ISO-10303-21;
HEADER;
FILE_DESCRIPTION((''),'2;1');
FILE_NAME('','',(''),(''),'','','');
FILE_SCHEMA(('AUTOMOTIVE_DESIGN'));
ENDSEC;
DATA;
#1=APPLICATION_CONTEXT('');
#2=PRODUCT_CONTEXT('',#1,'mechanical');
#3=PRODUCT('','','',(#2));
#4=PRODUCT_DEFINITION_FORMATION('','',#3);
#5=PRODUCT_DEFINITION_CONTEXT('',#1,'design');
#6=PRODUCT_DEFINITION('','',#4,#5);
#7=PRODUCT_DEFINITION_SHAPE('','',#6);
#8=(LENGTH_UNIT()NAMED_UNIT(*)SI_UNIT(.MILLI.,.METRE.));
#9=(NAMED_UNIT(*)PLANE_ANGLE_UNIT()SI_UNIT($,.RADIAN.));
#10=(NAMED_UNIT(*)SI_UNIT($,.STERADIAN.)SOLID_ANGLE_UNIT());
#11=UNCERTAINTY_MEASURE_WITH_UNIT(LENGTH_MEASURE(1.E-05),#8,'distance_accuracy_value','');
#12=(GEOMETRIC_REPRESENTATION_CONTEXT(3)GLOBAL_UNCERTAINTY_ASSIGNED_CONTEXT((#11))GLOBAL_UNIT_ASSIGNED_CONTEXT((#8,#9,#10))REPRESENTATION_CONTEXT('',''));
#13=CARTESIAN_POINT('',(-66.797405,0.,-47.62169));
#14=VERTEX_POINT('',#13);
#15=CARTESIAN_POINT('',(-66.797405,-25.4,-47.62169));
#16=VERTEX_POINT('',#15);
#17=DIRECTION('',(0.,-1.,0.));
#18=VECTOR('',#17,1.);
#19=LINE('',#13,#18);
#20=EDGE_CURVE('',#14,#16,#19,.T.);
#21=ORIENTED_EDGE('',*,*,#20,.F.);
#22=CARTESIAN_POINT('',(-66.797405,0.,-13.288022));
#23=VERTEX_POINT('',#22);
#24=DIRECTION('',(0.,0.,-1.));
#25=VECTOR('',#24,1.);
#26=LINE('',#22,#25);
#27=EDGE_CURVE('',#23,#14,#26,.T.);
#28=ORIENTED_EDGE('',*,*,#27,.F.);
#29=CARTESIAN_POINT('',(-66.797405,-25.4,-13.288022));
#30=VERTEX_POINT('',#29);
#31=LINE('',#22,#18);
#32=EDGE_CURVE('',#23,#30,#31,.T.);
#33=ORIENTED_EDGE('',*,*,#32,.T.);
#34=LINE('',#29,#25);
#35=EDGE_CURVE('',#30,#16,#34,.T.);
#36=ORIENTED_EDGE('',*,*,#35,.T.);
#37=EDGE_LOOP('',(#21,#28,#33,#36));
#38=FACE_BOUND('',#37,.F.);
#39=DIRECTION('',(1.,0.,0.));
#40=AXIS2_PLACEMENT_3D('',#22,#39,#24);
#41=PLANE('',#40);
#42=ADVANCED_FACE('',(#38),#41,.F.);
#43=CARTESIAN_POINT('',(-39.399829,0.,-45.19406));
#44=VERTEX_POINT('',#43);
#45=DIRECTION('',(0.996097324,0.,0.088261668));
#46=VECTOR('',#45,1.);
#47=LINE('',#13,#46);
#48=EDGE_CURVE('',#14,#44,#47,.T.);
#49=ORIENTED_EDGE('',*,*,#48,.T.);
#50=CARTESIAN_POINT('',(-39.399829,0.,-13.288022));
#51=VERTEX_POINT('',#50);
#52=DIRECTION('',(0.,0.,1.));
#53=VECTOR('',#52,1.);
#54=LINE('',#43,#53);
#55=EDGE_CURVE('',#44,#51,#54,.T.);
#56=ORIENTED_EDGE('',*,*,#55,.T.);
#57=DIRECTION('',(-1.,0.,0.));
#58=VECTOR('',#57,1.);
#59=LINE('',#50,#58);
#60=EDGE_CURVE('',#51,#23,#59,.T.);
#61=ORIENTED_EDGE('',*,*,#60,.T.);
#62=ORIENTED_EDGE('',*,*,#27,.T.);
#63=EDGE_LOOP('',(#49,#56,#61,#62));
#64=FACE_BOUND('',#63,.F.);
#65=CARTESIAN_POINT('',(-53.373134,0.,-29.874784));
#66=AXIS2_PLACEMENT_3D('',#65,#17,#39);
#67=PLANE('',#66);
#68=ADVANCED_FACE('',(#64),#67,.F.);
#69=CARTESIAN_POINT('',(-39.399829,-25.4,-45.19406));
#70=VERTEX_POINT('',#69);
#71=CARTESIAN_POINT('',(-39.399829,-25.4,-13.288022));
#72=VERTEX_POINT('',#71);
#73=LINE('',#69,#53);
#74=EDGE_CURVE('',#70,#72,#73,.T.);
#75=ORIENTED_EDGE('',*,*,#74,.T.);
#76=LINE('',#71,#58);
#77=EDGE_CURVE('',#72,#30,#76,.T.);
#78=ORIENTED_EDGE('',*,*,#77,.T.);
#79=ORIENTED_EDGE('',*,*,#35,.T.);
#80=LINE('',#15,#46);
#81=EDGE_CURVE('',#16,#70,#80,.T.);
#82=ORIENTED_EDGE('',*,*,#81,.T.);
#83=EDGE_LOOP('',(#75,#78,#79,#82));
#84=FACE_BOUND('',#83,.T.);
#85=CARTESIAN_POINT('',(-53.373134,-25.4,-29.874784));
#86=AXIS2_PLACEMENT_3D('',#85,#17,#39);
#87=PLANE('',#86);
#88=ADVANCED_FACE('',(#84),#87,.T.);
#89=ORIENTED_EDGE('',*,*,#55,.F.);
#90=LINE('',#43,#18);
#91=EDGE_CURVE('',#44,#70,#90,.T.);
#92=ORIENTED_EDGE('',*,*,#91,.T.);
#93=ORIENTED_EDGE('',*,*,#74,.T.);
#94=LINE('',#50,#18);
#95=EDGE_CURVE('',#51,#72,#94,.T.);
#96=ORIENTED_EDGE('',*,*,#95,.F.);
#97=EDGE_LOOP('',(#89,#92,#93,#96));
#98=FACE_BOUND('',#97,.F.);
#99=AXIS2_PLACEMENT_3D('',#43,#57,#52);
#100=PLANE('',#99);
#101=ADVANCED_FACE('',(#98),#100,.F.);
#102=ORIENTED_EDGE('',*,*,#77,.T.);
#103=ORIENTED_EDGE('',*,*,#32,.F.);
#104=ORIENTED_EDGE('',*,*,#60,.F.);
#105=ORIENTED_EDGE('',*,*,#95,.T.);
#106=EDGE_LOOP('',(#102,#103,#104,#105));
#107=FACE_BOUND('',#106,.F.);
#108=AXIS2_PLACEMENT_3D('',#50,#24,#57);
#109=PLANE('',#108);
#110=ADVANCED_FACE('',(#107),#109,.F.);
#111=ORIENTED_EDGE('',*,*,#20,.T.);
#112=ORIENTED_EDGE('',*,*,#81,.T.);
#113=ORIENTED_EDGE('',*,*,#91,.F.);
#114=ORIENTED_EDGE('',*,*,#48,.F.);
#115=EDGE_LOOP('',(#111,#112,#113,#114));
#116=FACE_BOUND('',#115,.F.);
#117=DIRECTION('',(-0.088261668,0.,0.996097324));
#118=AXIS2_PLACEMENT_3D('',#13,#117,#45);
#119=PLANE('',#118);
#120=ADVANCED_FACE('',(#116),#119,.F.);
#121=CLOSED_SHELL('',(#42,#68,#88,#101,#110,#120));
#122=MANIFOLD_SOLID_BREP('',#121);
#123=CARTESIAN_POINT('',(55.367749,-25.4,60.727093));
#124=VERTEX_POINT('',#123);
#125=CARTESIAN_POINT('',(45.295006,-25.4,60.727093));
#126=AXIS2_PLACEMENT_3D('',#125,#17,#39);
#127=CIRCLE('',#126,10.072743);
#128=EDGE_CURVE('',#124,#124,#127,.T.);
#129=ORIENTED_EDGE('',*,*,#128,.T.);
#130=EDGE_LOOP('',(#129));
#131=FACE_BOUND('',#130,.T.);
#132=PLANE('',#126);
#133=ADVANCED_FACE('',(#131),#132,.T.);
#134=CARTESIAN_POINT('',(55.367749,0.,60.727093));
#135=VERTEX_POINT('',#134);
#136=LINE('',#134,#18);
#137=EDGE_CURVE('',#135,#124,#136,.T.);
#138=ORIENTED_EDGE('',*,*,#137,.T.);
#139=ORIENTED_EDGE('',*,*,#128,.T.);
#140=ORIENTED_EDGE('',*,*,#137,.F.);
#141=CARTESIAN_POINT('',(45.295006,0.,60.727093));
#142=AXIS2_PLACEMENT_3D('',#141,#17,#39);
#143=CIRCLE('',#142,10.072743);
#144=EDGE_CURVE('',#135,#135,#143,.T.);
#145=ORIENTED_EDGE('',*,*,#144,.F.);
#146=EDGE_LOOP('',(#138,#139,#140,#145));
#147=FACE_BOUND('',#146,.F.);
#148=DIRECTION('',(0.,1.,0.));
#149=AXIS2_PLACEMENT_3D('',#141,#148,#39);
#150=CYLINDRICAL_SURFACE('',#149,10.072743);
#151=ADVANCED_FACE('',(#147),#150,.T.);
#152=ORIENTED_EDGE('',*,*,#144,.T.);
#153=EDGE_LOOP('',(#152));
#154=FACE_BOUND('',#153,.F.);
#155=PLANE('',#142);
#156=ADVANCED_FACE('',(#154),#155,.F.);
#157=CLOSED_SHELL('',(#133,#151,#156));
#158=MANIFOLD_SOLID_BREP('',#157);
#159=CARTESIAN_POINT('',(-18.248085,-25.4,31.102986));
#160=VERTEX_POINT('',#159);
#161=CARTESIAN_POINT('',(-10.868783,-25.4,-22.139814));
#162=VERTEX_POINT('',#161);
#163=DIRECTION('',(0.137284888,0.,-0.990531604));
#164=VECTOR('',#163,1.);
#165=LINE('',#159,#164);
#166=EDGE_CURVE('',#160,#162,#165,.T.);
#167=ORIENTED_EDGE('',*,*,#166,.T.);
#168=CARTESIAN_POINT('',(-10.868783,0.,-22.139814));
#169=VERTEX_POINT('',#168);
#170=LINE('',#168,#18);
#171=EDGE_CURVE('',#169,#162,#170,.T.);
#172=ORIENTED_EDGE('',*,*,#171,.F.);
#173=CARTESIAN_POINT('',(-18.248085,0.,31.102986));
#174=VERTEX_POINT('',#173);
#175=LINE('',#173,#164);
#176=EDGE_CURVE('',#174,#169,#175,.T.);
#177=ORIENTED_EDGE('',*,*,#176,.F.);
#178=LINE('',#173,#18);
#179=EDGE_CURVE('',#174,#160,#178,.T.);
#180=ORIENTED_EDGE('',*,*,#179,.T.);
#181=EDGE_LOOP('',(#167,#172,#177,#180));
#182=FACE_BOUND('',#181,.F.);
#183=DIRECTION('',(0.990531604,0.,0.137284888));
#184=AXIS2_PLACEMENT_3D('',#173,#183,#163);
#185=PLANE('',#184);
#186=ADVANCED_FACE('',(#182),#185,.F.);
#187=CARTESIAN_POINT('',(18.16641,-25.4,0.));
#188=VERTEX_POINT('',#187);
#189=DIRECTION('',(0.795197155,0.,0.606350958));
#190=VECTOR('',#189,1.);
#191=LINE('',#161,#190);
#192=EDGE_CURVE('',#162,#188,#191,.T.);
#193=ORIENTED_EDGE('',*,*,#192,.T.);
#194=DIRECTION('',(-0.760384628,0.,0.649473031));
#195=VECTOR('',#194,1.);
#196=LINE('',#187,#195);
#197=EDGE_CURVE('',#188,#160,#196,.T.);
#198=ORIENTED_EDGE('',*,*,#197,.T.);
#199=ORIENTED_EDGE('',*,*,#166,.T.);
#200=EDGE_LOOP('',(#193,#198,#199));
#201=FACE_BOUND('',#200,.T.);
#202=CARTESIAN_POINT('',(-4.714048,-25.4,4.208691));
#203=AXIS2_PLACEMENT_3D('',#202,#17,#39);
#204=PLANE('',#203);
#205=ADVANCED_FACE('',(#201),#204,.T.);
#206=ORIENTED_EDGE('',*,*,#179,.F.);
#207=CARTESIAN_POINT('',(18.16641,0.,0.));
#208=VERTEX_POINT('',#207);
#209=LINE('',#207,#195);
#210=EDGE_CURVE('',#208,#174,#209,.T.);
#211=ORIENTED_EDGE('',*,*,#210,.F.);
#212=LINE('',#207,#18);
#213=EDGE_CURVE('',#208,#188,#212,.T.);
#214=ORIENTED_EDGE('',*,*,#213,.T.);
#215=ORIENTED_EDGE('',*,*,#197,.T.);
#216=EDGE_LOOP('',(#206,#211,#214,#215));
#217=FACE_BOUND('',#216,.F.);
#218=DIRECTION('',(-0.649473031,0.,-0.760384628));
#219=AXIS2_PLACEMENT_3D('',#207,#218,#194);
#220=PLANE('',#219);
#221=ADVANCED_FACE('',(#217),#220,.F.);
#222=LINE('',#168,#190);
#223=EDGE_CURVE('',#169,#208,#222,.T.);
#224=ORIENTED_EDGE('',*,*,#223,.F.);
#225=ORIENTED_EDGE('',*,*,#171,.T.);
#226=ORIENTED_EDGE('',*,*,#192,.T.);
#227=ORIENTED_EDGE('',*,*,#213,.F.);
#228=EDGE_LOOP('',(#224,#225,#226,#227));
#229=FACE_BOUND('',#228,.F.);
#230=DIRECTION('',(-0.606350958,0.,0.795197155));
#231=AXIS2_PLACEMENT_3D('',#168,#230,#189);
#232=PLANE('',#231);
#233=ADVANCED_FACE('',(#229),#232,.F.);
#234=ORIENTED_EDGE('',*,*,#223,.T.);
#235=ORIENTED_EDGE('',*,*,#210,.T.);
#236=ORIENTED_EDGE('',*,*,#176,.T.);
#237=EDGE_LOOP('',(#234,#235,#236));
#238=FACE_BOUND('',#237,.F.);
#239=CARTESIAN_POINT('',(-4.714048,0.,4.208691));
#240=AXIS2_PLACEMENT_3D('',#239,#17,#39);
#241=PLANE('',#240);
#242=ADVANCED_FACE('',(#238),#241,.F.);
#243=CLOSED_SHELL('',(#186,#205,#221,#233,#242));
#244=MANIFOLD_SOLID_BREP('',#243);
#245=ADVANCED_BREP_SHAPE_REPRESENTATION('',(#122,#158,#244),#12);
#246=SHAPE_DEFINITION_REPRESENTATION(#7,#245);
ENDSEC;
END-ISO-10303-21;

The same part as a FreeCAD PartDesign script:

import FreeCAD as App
import Part
import Sketcher

V = App.Vector
Q = App.Units.Quantity


def add_polygon(sketch, points):
    """Adds a closed chain of lines whose ends are joined by coincident constraints."""
    first, n = sketch.GeometryCount, len(points)
    for a, b in zip(points, points[1:] + points[:1]):
        sketch.addGeometry(Part.LineSegment(App.Vector(*a, 0), App.Vector(*b, 0)), False)
    for i in range(n):
        sketch.addConstraint(Sketcher.Constraint("Coincident", first + i, 2, first + (i + 1) % n, 1))

doc = App.newDocument("Part")
body = doc.addObject("PartDesign::Body", "Body")
body.AllowCompound = True

sketch1 = body.newObject("Sketcher::SketchObject", "Sketch")
sketch1.AttachmentSupport = (doc.getObject("XZ_Plane"), [""])
sketch1.MapMode = "FlatFace"
sketch1.addGeometry(Part.Circle(V(45.295006, 60.727093, 0), V(0, 0, 1), 10.072743), False)
add_polygon(sketch1, [(-39.399829, -13.288022), (-66.797405, -13.288022), (-66.797405, -47.62169), (-39.399829, -45.19406)])
add_polygon(sketch1, [(18.16641, 0), (-18.248085, 31.102986), (-10.868783, -22.139814)])
sketch1.addConstraint([
    Sketcher.Constraint("Horizontal", 1),
    Sketcher.Constraint("Vertical", 2),
    Sketcher.Constraint("Vertical", 4),
    Sketcher.Constraint("PointOnObject", 7, 2, -1),
    Sketcher.Constraint("Diameter", 0, 20.145486),
    Sketcher.Constraint("DistanceY", 2, 2, 0, 3, Q("4.2657001 in")),
    Sketcher.Constraint("Distance", 7, 36.5132),
    Sketcher.Constraint("DistanceY", 2, 2, 2, 1, 34.333668),
    Sketcher.Constraint("DistanceY", 4, 1, 4, 2, 31.906038),
    Sketcher.Constraint("DistanceX", 5, 2, 6, 2, 7.379302),
    Sketcher.Constraint("DistanceY", 6, 2, 5, 2, 53.2428),
    Sketcher.Constraint("Distance", 3, 27.504919),
    Sketcher.Constraint("DistanceY", 2, 2, -1, 1, 47.62169),
    Sketcher.Constraint("DistanceX", 3, 2, -1, 1, 39.399829),
    Sketcher.Constraint("DistanceX", -1, 1, 7, 2, 18.16641),
    Sketcher.Constraint("DistanceX", 1, 2, 0, 3, 112.092411),
    Sketcher.Constraint("DistanceX", 1, 2, 5, 2, 48.54932),
])
pad1 = body.newObject("PartDesign::Pad", "Pad")
pad1.Profile = sketch1
pad1.Length = Q("1 in")

doc.recompute()
